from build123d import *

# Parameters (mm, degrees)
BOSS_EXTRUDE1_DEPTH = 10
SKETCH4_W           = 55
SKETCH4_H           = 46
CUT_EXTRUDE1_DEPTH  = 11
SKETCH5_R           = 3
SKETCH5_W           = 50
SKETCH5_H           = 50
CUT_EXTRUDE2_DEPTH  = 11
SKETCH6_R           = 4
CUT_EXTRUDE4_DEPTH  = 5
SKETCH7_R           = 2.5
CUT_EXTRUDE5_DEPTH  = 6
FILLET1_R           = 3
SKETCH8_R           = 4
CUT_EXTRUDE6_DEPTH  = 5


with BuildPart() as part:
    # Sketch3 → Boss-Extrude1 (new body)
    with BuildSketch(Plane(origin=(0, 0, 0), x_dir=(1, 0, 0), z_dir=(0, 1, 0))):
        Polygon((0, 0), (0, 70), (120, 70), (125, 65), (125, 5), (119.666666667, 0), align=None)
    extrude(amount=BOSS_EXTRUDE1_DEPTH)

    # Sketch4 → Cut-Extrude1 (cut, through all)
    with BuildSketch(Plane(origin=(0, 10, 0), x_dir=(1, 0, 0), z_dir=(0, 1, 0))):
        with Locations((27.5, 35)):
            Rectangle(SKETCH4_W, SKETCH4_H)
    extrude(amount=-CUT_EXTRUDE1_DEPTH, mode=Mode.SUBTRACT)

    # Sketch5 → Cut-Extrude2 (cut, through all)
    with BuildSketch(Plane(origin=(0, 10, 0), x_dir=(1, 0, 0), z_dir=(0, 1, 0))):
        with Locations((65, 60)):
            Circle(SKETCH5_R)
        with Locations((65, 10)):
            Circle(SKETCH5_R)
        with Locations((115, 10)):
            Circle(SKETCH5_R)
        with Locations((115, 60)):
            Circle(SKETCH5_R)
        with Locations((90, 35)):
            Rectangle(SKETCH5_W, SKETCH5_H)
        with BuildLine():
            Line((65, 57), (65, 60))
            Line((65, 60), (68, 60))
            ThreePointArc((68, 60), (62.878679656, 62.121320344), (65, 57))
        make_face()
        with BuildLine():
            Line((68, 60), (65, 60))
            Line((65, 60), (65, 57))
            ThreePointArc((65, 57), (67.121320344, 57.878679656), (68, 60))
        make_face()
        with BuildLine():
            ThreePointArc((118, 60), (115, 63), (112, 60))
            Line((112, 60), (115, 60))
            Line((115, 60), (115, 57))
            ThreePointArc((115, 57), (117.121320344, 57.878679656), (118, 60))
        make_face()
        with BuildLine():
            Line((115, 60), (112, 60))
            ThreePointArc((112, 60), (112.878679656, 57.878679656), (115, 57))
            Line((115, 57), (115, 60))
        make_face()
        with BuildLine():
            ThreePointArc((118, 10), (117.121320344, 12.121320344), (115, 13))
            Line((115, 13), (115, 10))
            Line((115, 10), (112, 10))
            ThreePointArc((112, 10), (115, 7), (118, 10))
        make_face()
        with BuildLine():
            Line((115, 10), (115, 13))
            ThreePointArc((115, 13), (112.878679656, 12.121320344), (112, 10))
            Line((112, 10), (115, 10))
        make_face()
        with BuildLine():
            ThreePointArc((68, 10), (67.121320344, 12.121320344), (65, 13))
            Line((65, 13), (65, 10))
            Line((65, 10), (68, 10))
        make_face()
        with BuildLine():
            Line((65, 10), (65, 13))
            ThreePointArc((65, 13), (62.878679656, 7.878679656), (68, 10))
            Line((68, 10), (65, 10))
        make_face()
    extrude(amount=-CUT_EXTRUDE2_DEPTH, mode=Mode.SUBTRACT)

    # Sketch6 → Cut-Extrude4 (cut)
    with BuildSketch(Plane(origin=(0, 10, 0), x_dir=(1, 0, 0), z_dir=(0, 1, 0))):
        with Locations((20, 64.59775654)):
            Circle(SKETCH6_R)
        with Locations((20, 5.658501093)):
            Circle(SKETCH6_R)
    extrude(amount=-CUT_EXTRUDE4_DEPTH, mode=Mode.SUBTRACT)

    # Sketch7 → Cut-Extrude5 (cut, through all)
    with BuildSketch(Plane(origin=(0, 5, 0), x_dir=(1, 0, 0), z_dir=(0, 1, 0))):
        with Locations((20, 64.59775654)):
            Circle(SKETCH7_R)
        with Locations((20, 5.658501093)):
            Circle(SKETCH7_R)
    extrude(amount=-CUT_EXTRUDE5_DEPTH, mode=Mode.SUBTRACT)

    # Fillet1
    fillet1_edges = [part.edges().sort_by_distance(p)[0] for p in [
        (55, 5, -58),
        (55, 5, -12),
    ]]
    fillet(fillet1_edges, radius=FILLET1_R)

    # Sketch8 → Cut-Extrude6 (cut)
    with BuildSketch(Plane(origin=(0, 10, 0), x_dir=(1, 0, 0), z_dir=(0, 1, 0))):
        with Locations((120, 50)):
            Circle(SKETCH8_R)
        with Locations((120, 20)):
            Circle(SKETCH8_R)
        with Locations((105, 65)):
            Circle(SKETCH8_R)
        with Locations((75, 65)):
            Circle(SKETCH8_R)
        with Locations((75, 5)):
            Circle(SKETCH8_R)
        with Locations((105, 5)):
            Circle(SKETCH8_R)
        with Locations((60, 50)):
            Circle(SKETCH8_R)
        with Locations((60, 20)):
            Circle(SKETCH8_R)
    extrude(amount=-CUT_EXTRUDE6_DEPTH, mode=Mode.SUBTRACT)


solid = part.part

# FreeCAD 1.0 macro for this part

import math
import FreeCAD as App
import Part
import Sketcher

V = App.Vector
Q = App.Units.Quantity


def edges_at(feature, points):
    """Names of the edges that pass closest to the given points."""
    edges = feature.Shape.Edges
    near = lambda p: min(range(len(edges)), key=lambda i: edges[i].distToShape(Part.Vertex(*p))[0])
    return sorted({f"Edge{near(p) + 1}" for p in points})


def add_polygon(sketch, points):
    """Adds a closed chain of lines whose ends are joined by coincident constraints."""
    first, n = sketch.GeometryCount, len(points)
    for a, b in zip(points, points[1:] + points[:1]):
        sketch.addGeometry(Part.LineSegment(App.Vector(*a, 0), App.Vector(*b, 0)), False)
    for i in range(n):
        sketch.addConstraint(Sketcher.Constraint("Coincident", first + i, 2, first + (i + 1) % n, 1))

doc = App.newDocument("Part")
params = doc.addObject("Spreadsheet::Sheet", "Params")
for row, (alias, value) in enumerate([
    ("sketch1_width", "120 mm"),
    ("sketch1_height", "70 mm"),
    ("sketch1_height2", "60 mm"),
    ("pad1_length", "10 mm"),
    ("sketch2_width", "55 mm"),
    ("sketch2_height", "46 mm"),
    ("sketch3_radius", "3 mm"),
    ("sketch3_width", "44 mm"),
    ("sketch4_diameter", "8 mm"),
    ("pocket3_length", "5 mm"),
    ("sketch5_diameter", "5 mm"),
    ("fillet_radius", "3 mm"),
    ("sketch6_diameter", "8 mm"),
    ("pocket5_length", "5 mm"),
], start=1):
    params.set(f"A{row}", alias)
    params.set(f"B{row}", "=" + value)
    params.setAlias(f"B{row}", alias)

body = doc.addObject("PartDesign::Body", "Body")

# Sketch on XZ plane
sketch1 = doc.addObject("Sketcher::SketchObject", "Sketch")
body.addObject(sketch1)
sketch1.AttachmentSupport = (doc.XZ_Plane, [""])
sketch1.MapMode = "FlatFace"
add_polygon(sketch1, [(0, -70), (0, 0), (119.666667, 0), (125, -5), (125, -65), (120, -70)])  # lines 0-5
sketch1.addConstraint([
    Sketcher.Constraint("Vertical", 0),
    Sketcher.Constraint("Horizontal", 1),
    Sketcher.Constraint("Vertical", 3),
    Sketcher.Constraint("Horizontal", 5),
    Sketcher.Constraint("Coincident", 0, 2, -1, 1),
    Sketcher.Constraint("DistanceX", 5, 2, 5, 1, 120.0),
    Sketcher.Constraint("DistanceY", 0, 1, 0, 2, 70.0),
    Sketcher.Constraint("DistanceY", 3, 2, 3, 1, 60.0),
    Sketcher.Constraint("Angle", 4, Q("-135 deg")),
    Sketcher.Constraint("DistanceX", -1, 1, 2, 2, 125.0),
    Sketcher.Constraint("Distance", 2, 7.310571),
])
sketch1.setExpression("Constraints[11]", "Params.sketch1_width")
sketch1.setExpression("Constraints[12]", "Params.sketch1_height")
sketch1.setExpression("Constraints[13]", "Params.sketch1_height2")
pad1 = doc.addObject("PartDesign::Pad", "Pad")
body.addObject(pad1)
pad1.Profile = sketch1
pad1.setExpression("Length", "Params.pad1_length")
pad1.Reversed = True

# Sketch on XZ plane
sketch2 = doc.addObject("Sketcher::SketchObject", "Sketch001")
body.addObject(sketch2)
sketch2.AttachmentSupport = (doc.XZ_Plane, [""])
sketch2.MapMode = "FlatFace"
sketch2.AttachmentOffset = App.Placement(V(0, 0, -10), App.Rotation())
add_polygon(sketch2, [(0, -58), (0, -12), (55, -12), (55, -58)])  # lines 0-3
sketch2.addConstraint([
    Sketcher.Constraint("Vertical", 0),
    Sketcher.Constraint("Horizontal", 1),
    Sketcher.Constraint("Vertical", 2),
    Sketcher.Constraint("Horizontal", 3),
    Sketcher.Constraint("PointOnObject", 0, 2, -2),
    Sketcher.Constraint("DistanceX", 1, 1, 1, 2, 55.0),
    Sketcher.Constraint("DistanceY", 0, 1, 0, 2, 46.0),
    Sketcher.Constraint("DistanceY", 0, 2, -1, 1, 12.0),
])
sketch2.setExpression("Constraints[9]", "Params.sketch2_width")
sketch2.setExpression("Constraints[10]", "Params.sketch2_height")
pocket1 = doc.addObject("PartDesign::Pocket", "Pocket")
body.addObject(pocket1)
pocket1.Profile = sketch2
pocket1.Type = "ThroughAll"
pocket1.Reversed = True

# Sketch on XZ plane
sketch3 = doc.addObject("Sketcher::SketchObject", "Sketch002")
body.addObject(sketch3)
sketch3.AttachmentSupport = (doc.XZ_Plane, [""])
sketch3.MapMode = "FlatFace"
sketch3.AttachmentOffset = App.Placement(V(0, 0, -10), App.Rotation())
sketch3.addGeometry([
    Part.LineSegment(V(112, -60, 0), V(68, -60, 0)),  # 0
    Part.ArcOfCircle(Part.Circle(V(65, -60, 0), V(0, 0, 1), 3), math.radians(90), math.radians(360)),  # 1
    Part.LineSegment(V(65, -57, 0), V(65, -13, 0)),  # 2
    Part.ArcOfCircle(Part.Circle(V(65, -10, 0), V(0, 0, 1), 3), math.radians(0), math.radians(270)),  # 3
    Part.LineSegment(V(68, -10, 0), V(112, -10, 0)),  # 4
    Part.ArcOfCircle(Part.Circle(V(115, -10, 0), V(0, 0, 1), 3), math.radians(-90), math.radians(180)),  # 5
    Part.LineSegment(V(115, -13, 0), V(115, -57, 0)),  # 6
    Part.ArcOfCircle(Part.Circle(V(115, -60, 0), V(0, 0, 1), 3), math.radians(180), math.radians(450)),  # 7
], False)
sketch3.addConstraint([
    Sketcher.Constraint("Coincident", 0, 2, 1, 2),
    Sketcher.Constraint("Coincident", 1, 1, 2, 1),
    Sketcher.Constraint("Coincident", 2, 2, 3, 2),
    Sketcher.Constraint("Coincident", 3, 1, 4, 1),
    Sketcher.Constraint("Coincident", 4, 2, 5, 2),
    Sketcher.Constraint("Coincident", 5, 1, 6, 1),
    Sketcher.Constraint("Coincident", 6, 2, 7, 2),
    Sketcher.Constraint("Coincident", 7, 1, 0, 1),
    Sketcher.Constraint("Horizontal", 0),
    Sketcher.Constraint("Vertical", 2),
    Sketcher.Constraint("Horizontal", 4),
    Sketcher.Constraint("Vertical", 6),
    Sketcher.Constraint("Equal", 1, 3),
    Sketcher.Constraint("Equal", 3, 5),
    Sketcher.Constraint("Equal", 5, 7),
    Sketcher.Constraint("Horizontal", 3, 3, 5, 3),
    Sketcher.Constraint("Horizontal", 1, 3, 7, 3),
    Sketcher.Constraint("Horizontal", 7, 3, 0, 2),
    Sketcher.Constraint("Horizontal", 5, 3, 3, 1),
    Sketcher.Constraint("Vertical", 1, 3, 3, 3),
    Sketcher.Constraint("Vertical", 5, 3, 7, 3),
    Sketcher.Constraint("Vertical", 3, 3, 1, 1),
    Sketcher.Constraint("Vertical", 7, 3, 5, 1),
    Sketcher.Constraint("Equal", 4, 2),
    Sketcher.Constraint("Radius", 1, 3.0),
    Sketcher.Constraint("DistanceX", 0, 2, 0, 1, 44.0),
    Sketcher.Constraint("DistanceX", -1, 1, 1, 3, 65.0),
    Sketcher.Constraint("DistanceY", 1, 3, -1, 1, 60.0),
])
sketch3.setExpression("Constraints[24]", "Params.sketch3_radius")
sketch3.setExpression("Constraints[25]", "Params.sketch3_width")
pocket2 = doc.addObject("PartDesign::Pocket", "Pocket001")
body.addObject(pocket2)
pocket2.Profile = sketch3
pocket2.Type = "ThroughAll"
pocket2.Reversed = True

# Sketch on XZ plane
sketch4 = doc.addObject("Sketcher::SketchObject", "Sketch003")
body.addObject(sketch4)
sketch4.AttachmentSupport = (doc.XZ_Plane, [""])
sketch4.MapMode = "FlatFace"
sketch4.AttachmentOffset = App.Placement(V(0, 0, -10), App.Rotation())
sketch4.addGeometry([
    Part.Circle(V(20, -64.597757, 0), V(0, 0, 1), 4),
    Part.Circle(V(20, -5.658501, 0), V(0, 0, 1), 4),
], False)
sketch4.addConstraint([
    Sketcher.Constraint("Equal", 0, 1),
    Sketcher.Constraint("Vertical", 0, 3, 1, 3),
    Sketcher.Constraint("Diameter", 0, 8.0),
    Sketcher.Constraint("DistanceX", -1, 1, 0, 3, 20.0),
    Sketcher.Constraint("DistanceY", 1, 3, -1, 1, 5.658501),
    Sketcher.Constraint("DistanceY", 0, 3, -1, 1, 64.597757),
])
sketch4.setExpression("Constraints[2]", "Params.sketch4_diameter")
pocket3 = doc.addObject("PartDesign::Pocket", "Pocket002")
body.addObject(pocket3)
pocket3.Profile = sketch4
pocket3.setExpression("Length", "Params.pocket3_length")
pocket3.Reversed = True

# Sketch on XZ plane
sketch5 = doc.addObject("Sketcher::SketchObject", "Sketch004")
body.addObject(sketch5)
sketch5.AttachmentSupport = (doc.XZ_Plane, [""])
sketch5.MapMode = "FlatFace"
sketch5.AttachmentOffset = App.Placement(V(0, 0, -5), App.Rotation())
sketch5.addGeometry([
    Part.Circle(V(20, -64.597757, 0), V(0, 0, 1), 2.5),
    Part.Circle(V(20, -5.658501, 0), V(0, 0, 1), 2.5),
], False)
sketch5.addConstraint([
    Sketcher.Constraint("Equal", 0, 1),
    Sketcher.Constraint("Vertical", 0, 3, 1, 3),
    Sketcher.Constraint("Diameter", 0, 5.0),
    Sketcher.Constraint("DistanceX", -1, 1, 0, 3, 20.0),
    Sketcher.Constraint("DistanceY", 1, 3, -1, 1, 5.658501),
    Sketcher.Constraint("DistanceY", 0, 3, -1, 1, 64.597757),
])
sketch5.setExpression("Constraints[2]", "Params.sketch5_diameter")
pocket4 = doc.addObject("PartDesign::Pocket", "Pocket003")
body.addObject(pocket4)
pocket4.Profile = sketch5
pocket4.Type = "ThroughAll"
pocket4.Reversed = True
doc.recompute()

fillet = doc.addObject("PartDesign::Fillet", "Fillet")
body.addObject(fillet)
fillet.Base = (pocket4, edges_at(pocket4, [(55, 5, -58), (55, 5, -12)]))
fillet.setExpression("Radius", "Params.fillet_radius")

# Sketch on XZ plane
sketch6 = doc.addObject("Sketcher::SketchObject", "Sketch005")
body.addObject(sketch6)
sketch6.AttachmentSupport = (doc.XZ_Plane, [""])
sketch6.MapMode = "FlatFace"
sketch6.AttachmentOffset = App.Placement(V(0, 0, -10), App.Rotation())
sketch6.addGeometry([
    Part.Circle(V(120, -50, 0), V(0, 0, 1), 4),  # 0
    Part.Circle(V(120, -20, 0), V(0, 0, 1), 4),  # 1
    Part.Circle(V(105, -65, 0), V(0, 0, 1), 4),  # 2
    Part.Circle(V(75, -65, 0), V(0, 0, 1), 4),  # 3
    Part.Circle(V(75, -5, 0), V(0, 0, 1), 4),  # 4
    Part.Circle(V(105, -5, 0), V(0, 0, 1), 4),  # 5
    Part.Circle(V(60, -50, 0), V(0, 0, 1), 4),  # 6
    Part.Circle(V(60, -20, 0), V(0, 0, 1), 4),  # 7
], False)
sketch6.addConstraint([
    Sketcher.Constraint("Equal", 0, 1),
    Sketcher.Constraint("Equal", 1, 2),
    Sketcher.Constraint("Equal", 2, 3),
    Sketcher.Constraint("Equal", 3, 4),
    Sketcher.Constraint("Equal", 4, 5),
    Sketcher.Constraint("Equal", 5, 6),
    Sketcher.Constraint("Equal", 6, 7),
    Sketcher.Constraint("Horizontal", 2, 3, 3, 3),
    Sketcher.Constraint("Horizontal", 4, 3, 5, 3),
    Sketcher.Constraint("Horizontal", 0, 3, 6, 3),
    Sketcher.Constraint("Horizontal", 1, 3, 7, 3),
    Sketcher.Constraint("Vertical", 0, 3, 1, 3),
    Sketcher.Constraint("Vertical", 3, 3, 4, 3),
    Sketcher.Constraint("Vertical", 2, 3, 5, 3),
    Sketcher.Constraint("Vertical", 6, 3, 7, 3),
    Sketcher.Constraint("Diameter", 0, 8.0),
    Sketcher.Constraint("DistanceX", -1, 1, 0, 3, 120.0),
    Sketcher.Constraint("DistanceY", 0, 3, -1, 1, 50.0),
    Sketcher.Constraint("DistanceY", 1, 3, -1, 1, 20.0),
    Sketcher.Constraint("DistanceX", -1, 1, 2, 3, 105.0),
    Sketcher.Constraint("DistanceY", 2, 3, -1, 1, 65.0),
    Sketcher.Constraint("DistanceX", -1, 1, 3, 3, 75.0),
    Sketcher.Constraint("DistanceY", 4, 3, -1, 1, 5.0),
    Sketcher.Constraint("DistanceX", -1, 1, 6, 3, 60.0),
])
sketch6.setExpression("Constraints[15]", "Params.sketch6_diameter")
pocket5 = doc.addObject("PartDesign::Pocket", "Pocket004")
body.addObject(pocket5)
pocket5.Profile = sketch6
pocket5.setExpression("Length", "Params.pocket5_length")
pocket5.Reversed = True

doc.recompute()
